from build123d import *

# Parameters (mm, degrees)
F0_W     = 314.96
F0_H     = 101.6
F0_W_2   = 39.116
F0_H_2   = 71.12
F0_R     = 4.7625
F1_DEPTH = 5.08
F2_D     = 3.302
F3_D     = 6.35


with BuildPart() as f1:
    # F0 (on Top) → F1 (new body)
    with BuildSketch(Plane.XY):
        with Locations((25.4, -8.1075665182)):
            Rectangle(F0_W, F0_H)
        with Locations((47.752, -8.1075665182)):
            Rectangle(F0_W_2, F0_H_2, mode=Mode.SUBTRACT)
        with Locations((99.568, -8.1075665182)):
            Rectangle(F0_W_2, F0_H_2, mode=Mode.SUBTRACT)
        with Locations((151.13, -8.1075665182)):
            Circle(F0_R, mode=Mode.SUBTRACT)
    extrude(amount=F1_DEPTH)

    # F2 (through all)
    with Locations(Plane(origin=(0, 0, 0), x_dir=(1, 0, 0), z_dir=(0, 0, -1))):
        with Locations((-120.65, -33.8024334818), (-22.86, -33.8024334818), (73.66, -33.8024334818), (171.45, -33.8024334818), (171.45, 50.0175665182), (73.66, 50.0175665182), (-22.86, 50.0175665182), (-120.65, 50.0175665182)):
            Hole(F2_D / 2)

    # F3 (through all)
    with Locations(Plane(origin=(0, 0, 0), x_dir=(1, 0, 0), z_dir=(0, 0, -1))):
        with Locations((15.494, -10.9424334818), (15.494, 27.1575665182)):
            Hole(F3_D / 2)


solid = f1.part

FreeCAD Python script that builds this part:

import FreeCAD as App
import Part
import Sketcher
Q = App.Units.Quantity


def add_polygon(sketch, points):
    """Adds a closed chain of lines whose ends are joined by coincident constraints."""
    first, n = sketch.GeometryCount, len(points)
    for a, b in zip(points, points[1:] + points[:1]):
        sketch.addGeometry(Part.LineSegment(App.Vector(*a, 0), App.Vector(*b, 0)), False)
    for i in range(n):
        sketch.addConstraint(Sketcher.Constraint("Coincident", first + i, 2, first + (i + 1) % n, 1))

doc = App.newDocument("Part")
body = doc.addObject("PartDesign::Body", "Body")

# Sketch on XY plane
sketch1 = body.newObject("Sketcher::SketchObject", "Sketch")
sketch1.AttachmentSupport = (doc.getObject("XY_Plane"), [""])
sketch1.MapMode = "FlatFace"
add_polygon(sketch1, [(-132.1, 42.7), (-132.1, -58.9), (182.9, -58.9), (182.9, 42.7)])  # lines 0-3
add_polygon(sketch1, [(67.3, -43.7), (28.2, -43.7), (28.2, 27.5), (67.3, 27.5)])  # lines 4-7
add_polygon(sketch1, [(119.1, -43.7), (80, -43.7), (80, 27.5), (119.1, 27.5)])  # lines 8-11
sketch1.addGeometry(Part.Circle(App.Vector(151.1, -8.1, 0), App.Vector(0, 0, 1), 4.8), False)  # 12
sketch1.addConstraint(Sketcher.Constraint("Vertical", 0))
sketch1.addConstraint(Sketcher.Constraint("Horizontal", 1))
sketch1.addConstraint(Sketcher.Constraint("Vertical", 2))
sketch1.addConstraint(Sketcher.Constraint("Horizontal", 3))
sketch1.addConstraint(Sketcher.Constraint("Horizontal", 4))
sketch1.addConstraint(Sketcher.Constraint("Vertical", 5))
sketch1.addConstraint(Sketcher.Constraint("Horizontal", 6))
sketch1.addConstraint(Sketcher.Constraint("Vertical", 7))
sketch1.addConstraint(Sketcher.Constraint("Horizontal", 8))
sketch1.addConstraint(Sketcher.Constraint("Vertical", 9))
sketch1.addConstraint(Sketcher.Constraint("Horizontal", 10))
sketch1.addConstraint(Sketcher.Constraint("Vertical", 11))
sketch1.addConstraint(Sketcher.Constraint("Horizontal", 7, 2, 8, 2))
sketch1.addConstraint(Sketcher.Constraint("Horizontal", 6, 2, 9, 2))
sketch1.addConstraint(Sketcher.Constraint("Equal", 6, 8))
sketch1.addConstraint(Sketcher.Constraint("DistanceY", 0, 2, 0, 1, Q("4 in")))
sketch1.addConstraint(Sketcher.Constraint("Diameter", 12, Q("0.375 in")))
sketch1.addConstraint(Sketcher.Constraint("DistanceX", 1, 1, 1, 2, Q("12.4 in")))
sketch1.addConstraint(Sketcher.Constraint("DistanceY", 5, 1, 5, 2, Q("2.8 in")))
sketch1.addConstraint(Sketcher.Constraint("DistanceY", 0, 2, 12, 3, Q("2 in")))
sketch1.addConstraint(Sketcher.Constraint("DistanceX", 4, 2, 4, 1, Q("1.54 in")))
sketch1.addConstraint(Sketcher.Constraint("DistanceX", 0, 2, -1, 1, Q("5.2 in")))
sketch1.addConstraint(Sketcher.Constraint("DistanceY", 4, 2, 12, 3, Q("1.4 in")))
sketch1.addConstraint(Sketcher.Constraint("DistanceX", 6, 2, 12, 3, Q("3.3 in")))
sketch1.addConstraint(Sketcher.Constraint("DistanceX", 7, 2, 8, 2, Q("0.5 in")))
sketch1.addConstraint(Sketcher.Constraint("DistanceX", -1, 1, 12, 3, Q("5.95 in")))
sketch1.addConstraint(Sketcher.Constraint("DistanceY", 12, 3, -1, 1, 8.107567))
pad1 = body.newObject("PartDesign::Pad", "Pad")
pad1.Profile = sketch1
pad1.Length = Q("0.2 in")

# Sketch on XY plane
sketch2 = body.newObject("Sketcher::SketchObject", "Sketch001")
sketch2.AttachmentSupport = (doc.getObject("XY_Plane"), [""])
sketch2.MapMode = "FlatFace"
sketch2.addGeometry(Part.Circle(App.Vector(-120.7, 33.8, 0), App.Vector(0, 0, 1), 1.7), False)
sketch2.addGeometry(Part.Circle(App.Vector(-22.9, 33.8, 0), App.Vector(0, 0, 1), 1.7), False)
sketch2.addGeometry(Part.Circle(App.Vector(73.7, 33.8, 0), App.Vector(0, 0, 1), 1.7), False)
sketch2.addGeometry(Part.Circle(App.Vector(171.4, 33.8, 0), App.Vector(0, 0, 1), 1.7), False)
sketch2.addGeometry(Part.Circle(App.Vector(171.4, -50, 0), App.Vector(0, 0, 1), 1.7), False)
sketch2.addGeometry(Part.Circle(App.Vector(73.7, -50, 0), App.Vector(0, 0, 1), 1.7), False)
sketch2.addGeometry(Part.Circle(App.Vector(-22.9, -50, 0), App.Vector(0, 0, 1), 1.7), False)
sketch2.addGeometry(Part.Circle(App.Vector(-120.7, -50, 0), App.Vector(0, 0, 1), 1.7), False)
sketch2.addConstraint(Sketcher.Constraint("Equal", 0, 1))
sketch2.addConstraint(Sketcher.Constraint("Equal", 1, 2))
sketch2.addConstraint(Sketcher.Constraint("Equal", 2, 3))
sketch2.addConstraint(Sketcher.Constraint("Equal", 3, 4))
sketch2.addConstraint(Sketcher.Constraint("Equal", 4, 5))
sketch2.addConstraint(Sketcher.Constraint("Equal", 5, 6))
sketch2.addConstraint(Sketcher.Constraint("Equal", 6, 7))
sketch2.addConstraint(Sketcher.Constraint("Horizontal", 0, 3, 1, 3))
sketch2.addConstraint(Sketcher.Constraint("Horizontal", 1, 3, 2, 3))
sketch2.addConstraint(Sketcher.Constraint("Horizontal", 2, 3, 3, 3))
sketch2.addConstraint(Sketcher.Constraint("Horizontal", 4, 3, 5, 3))
sketch2.addConstraint(Sketcher.Constraint("Horizontal", 5, 3, 6, 3))
sketch2.addConstraint(Sketcher.Constraint("Horizontal", 6, 3, 7, 3))
sketch2.addConstraint(Sketcher.Constraint("Vertical", 3, 3, 4, 3))
sketch2.addConstraint(Sketcher.Constraint("Vertical", 2, 3, 5, 3))
sketch2.addConstraint(Sketcher.Constraint("Vertical", 1, 3, 6, 3))
sketch2.addConstraint(Sketcher.Constraint("Vertical", 0, 3, 7, 3))
sketch2.addConstraint(Sketcher.Constraint("Diameter", 0, Q("0.13 in")))
sketch2.addConstraint(Sketcher.Constraint("DistanceX", 1, 3, -1, 1, Q("0.9 in")))
sketch2.addConstraint(Sketcher.Constraint("DistanceX", -1, 1, 2, 3, Q("2.9 in")))
sketch2.addConstraint(Sketcher.Constraint("DistanceX", 0, 3, 3, 3, Q("11.5 in")))
sketch2.addConstraint(Sketcher.Constraint("DistanceY", 4, 3, 3, 3, Q("3.3 in")))
sketch2.addConstraint(Sketcher.Constraint("DistanceX", 0, 3, -1, 1, Q("4.75 in")))
sketch2.addConstraint(Sketcher.Constraint("DistanceY", -1, 1, 0, 3, 33.802433))
doc.recompute()
hole = body.newObject("PartDesign::Hole", "Hole")
hole.Profile = sketch2
hole.ThreadType = "None"
hole.Diameter = Q("0.13 in")
hole.DepthType = "ThroughAll"
hole.Reversed = True

# Sketch on XY plane
sketch3 = body.newObject("Sketcher::SketchObject", "Sketch002")
sketch3.AttachmentSupport = (doc.getObject("XY_Plane"), [""])
sketch3.MapMode = "FlatFace"
sketch3.addGeometry(Part.Circle(App.Vector(15.5, 10.9, 0), App.Vector(0, 0, 1), 3.2), False)
sketch3.addGeometry(Part.Circle(App.Vector(15.5, -27.2, 0), App.Vector(0, 0, 1), 3.2), False)
sketch3.addConstraint(Sketcher.Constraint("Equal", 0, 1))
sketch3.addConstraint(Sketcher.Constraint("Vertical", 0, 3, 1, 3))
sketch3.addConstraint(Sketcher.Constraint("Diameter", 0, Q("0.25 in")))
sketch3.addConstraint(Sketcher.Constraint("DistanceY", 1, 3, 0, 3, Q("1.5 in")))
sketch3.addConstraint(Sketcher.Constraint("DistanceX", -1, 1, 0, 3, Q("0.61 in")))
sketch3.addConstraint(Sketcher.Constraint("DistanceY", -1, 1, 0, 3, 10.942433))
doc.recompute()
hole2 = body.newObject("PartDesign::Hole", "Hole001")
hole2.Profile = sketch3
hole2.ThreadType = "None"
hole2.Diameter = Q("0.25 in")
hole2.DepthType = "ThroughAll"
hole2.Reversed = True

doc.recompute()
